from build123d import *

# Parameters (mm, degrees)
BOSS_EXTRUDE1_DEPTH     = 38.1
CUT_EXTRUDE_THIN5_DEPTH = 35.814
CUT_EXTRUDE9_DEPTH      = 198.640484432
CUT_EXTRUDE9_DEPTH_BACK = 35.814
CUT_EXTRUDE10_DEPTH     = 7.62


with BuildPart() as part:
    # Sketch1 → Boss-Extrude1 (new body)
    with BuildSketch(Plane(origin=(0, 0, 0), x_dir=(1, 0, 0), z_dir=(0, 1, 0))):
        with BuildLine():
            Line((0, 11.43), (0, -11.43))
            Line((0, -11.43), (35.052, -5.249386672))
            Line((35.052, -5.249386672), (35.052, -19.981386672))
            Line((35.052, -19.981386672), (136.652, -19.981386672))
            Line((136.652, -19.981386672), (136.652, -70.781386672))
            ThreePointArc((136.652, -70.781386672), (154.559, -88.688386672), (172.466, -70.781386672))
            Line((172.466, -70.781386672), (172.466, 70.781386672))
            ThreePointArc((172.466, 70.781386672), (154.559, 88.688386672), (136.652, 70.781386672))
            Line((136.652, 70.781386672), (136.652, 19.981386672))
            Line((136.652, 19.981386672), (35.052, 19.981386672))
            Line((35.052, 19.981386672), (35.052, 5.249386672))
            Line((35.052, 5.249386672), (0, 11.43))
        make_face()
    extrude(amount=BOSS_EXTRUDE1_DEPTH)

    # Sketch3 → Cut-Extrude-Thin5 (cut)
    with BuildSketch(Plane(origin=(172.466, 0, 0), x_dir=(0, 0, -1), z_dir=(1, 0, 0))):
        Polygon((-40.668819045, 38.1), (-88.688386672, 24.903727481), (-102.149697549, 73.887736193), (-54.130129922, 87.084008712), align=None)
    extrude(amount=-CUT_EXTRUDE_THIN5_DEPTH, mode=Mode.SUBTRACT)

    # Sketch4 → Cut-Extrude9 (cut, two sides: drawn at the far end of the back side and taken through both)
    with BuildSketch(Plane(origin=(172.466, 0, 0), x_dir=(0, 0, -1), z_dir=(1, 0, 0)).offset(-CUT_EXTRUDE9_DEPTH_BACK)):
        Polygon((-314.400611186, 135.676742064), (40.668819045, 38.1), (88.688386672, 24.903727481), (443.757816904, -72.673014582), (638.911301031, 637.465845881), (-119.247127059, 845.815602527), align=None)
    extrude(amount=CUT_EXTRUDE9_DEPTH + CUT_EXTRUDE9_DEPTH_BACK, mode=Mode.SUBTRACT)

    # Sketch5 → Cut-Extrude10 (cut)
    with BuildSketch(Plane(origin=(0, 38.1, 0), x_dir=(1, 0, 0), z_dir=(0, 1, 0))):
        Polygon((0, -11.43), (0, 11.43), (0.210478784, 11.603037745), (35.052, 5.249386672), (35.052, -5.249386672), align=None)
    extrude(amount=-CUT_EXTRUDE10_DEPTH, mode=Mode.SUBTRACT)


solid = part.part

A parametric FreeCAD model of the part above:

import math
import FreeCAD as App
import Part
import Sketcher
from FreeCAD import Vector
Q = App.Units.Quantity


def add_polygon(sketch, points):
    """Adds a closed chain of lines whose ends are joined by coincident constraints."""
    first, n = sketch.GeometryCount, len(points)
    for a, b in zip(points, points[1:] + points[:1]):
        sketch.addGeometry(Part.LineSegment(App.Vector(*a, 0), App.Vector(*b, 0)), False)
    for i in range(n):
        sketch.addConstraint(Sketcher.Constraint("Coincident", first + i, 2, first + (i + 1) % n, 1))

doc = App.newDocument("Part")
body = doc.addObject("PartDesign::Body", "Body")

sketch1 = body.newObject("Sketcher::SketchObject", "Sketch")
sketch1.AttachmentSupport = (doc.getObject("XZ_Plane"), [""])
sketch1.MapMode = "FlatFace"
sketch1.addGeometry(Part.LineSegment(Vector(0, -11.43, 0), Vector(0, 11.43, 0)), False)
sketch1.addGeometry(Part.LineSegment(Vector(0, 11.43, 0), Vector(35.052, 5.249387, 0)), False)
sketch1.addGeometry(Part.LineSegment(Vector(35.052, 5.249387, 0), Vector(35.052, 19.981387, 0)), False)
sketch1.addGeometry(Part.LineSegment(Vector(35.052, 19.981387, 0), Vector(136.652, 19.981387, 0)), False)
sketch1.addGeometry(Part.LineSegment(Vector(136.652, 19.981387, 0), Vector(136.652, 70.781387, 0)), False)
sketch1.addGeometry(Part.ArcOfCircle(Part.Circle(Vector(154.559, 70.781387, 0), Vector(0, 0, 1), 17.907), math.radians(0), math.radians(180)), False)
sketch1.addGeometry(Part.LineSegment(Vector(172.466, 70.781387, 0), Vector(172.466, -70.781387, 0)), False)
sketch1.addGeometry(Part.ArcOfCircle(Part.Circle(Vector(154.559, -70.781387, 0), Vector(0, 0, 1), 17.907), math.radians(180), math.radians(360)), False)
sketch1.addGeometry(Part.LineSegment(Vector(136.652, -70.781387, 0), Vector(136.652, -19.981387, 0)), False)
sketch1.addGeometry(Part.LineSegment(Vector(136.652, -19.981387, 0), Vector(35.052, -19.981387, 0)), False)
sketch1.addGeometry(Part.LineSegment(Vector(35.052, -19.981387, 0), Vector(35.052, -5.249387, 0)), False)
sketch1.addGeometry(Part.LineSegment(Vector(35.052, -5.249387, 0), Vector(0, -11.43, 0)), False)
sketch1.addConstraint(Sketcher.Constraint("Coincident", 0, 2, 1, 1))
sketch1.addConstraint(Sketcher.Constraint("Coincident", 1, 2, 2, 1))
sketch1.addConstraint(Sketcher.Constraint("Coincident", 2, 2, 3, 1))
sketch1.addConstraint(Sketcher.Constraint("Coincident", 3, 2, 4, 1))
sketch1.addConstraint(Sketcher.Constraint("Tangent", 4, 2, 5, 2))
sketch1.addConstraint(Sketcher.Constraint("Tangent", 5, 1, 6, 1))
sketch1.addConstraint(Sketcher.Constraint("Tangent", 6, 2, 7, 2))
sketch1.addConstraint(Sketcher.Constraint("Tangent", 7, 1, 8, 1))
sketch1.addConstraint(Sketcher.Constraint("Coincident", 8, 2, 9, 1))
sketch1.addConstraint(Sketcher.Constraint("Coincident", 9, 2, 10, 1))
sketch1.addConstraint(Sketcher.Constraint("Coincident", 10, 2, 11, 1))
sketch1.addConstraint(Sketcher.Constraint("Coincident", 11, 2, 0, 1))
sketch1.addConstraint(Sketcher.Constraint("Vertical", 0))
sketch1.addConstraint(Sketcher.Constraint("Vertical", 2))
sketch1.addConstraint(Sketcher.Constraint("Horizontal", 3))
sketch1.addConstraint(Sketcher.Constraint("Vertical", 4))
sketch1.addConstraint(Sketcher.Constraint("Vertical", 6))
sketch1.addConstraint(Sketcher.Constraint("Vertical", 8))
sketch1.addConstraint(Sketcher.Constraint("Horizontal", 9))
sketch1.addConstraint(Sketcher.Constraint("Vertical", 10))
sketch1.addConstraint(Sketcher.Constraint("Equal", 5, 7))
sketch1.addConstraint(Sketcher.Constraint("Symmetric", 0, 2, 11, 2, -1, 1))
sketch1.addConstraint(Sketcher.Constraint("Symmetric", 2, 2, 9, 2, -1))
sketch1.addConstraint(Sketcher.Constraint("Equal", 4, 8))
sketch1.addConstraint(Sketcher.Constraint("Equal", 2, 10))
sketch1.addConstraint(Sketcher.Constraint("DistanceX", 3, 1, 3, 2, Q("4 in")))
sketch1.addConstraint(Sketcher.Constraint("DistanceY", 4, 1, 4, 2, Q("2 in")))
sketch1.addConstraint(Sketcher.Constraint("DistanceY", 0, 1, 0, 2, Q("0.9 in")))
sketch1.addConstraint(Sketcher.Constraint("Angle", 1, Q("-10 deg")))
sketch1.addConstraint(Sketcher.Constraint("Radius", 5, Q("0.705 in")))
sketch1.addConstraint(Sketcher.Constraint("DistanceY", 2, 1, 2, 2, Q("0.58 in")))
sketch1.addConstraint(Sketcher.Constraint("DistanceX", -1, 1, 1, 2, Q("1.38 in")))
pad1 = body.newObject("PartDesign::Pad", "Pad")
pad1.Profile = sketch1
pad1.Length = Q("1.5 in")
pad1.Reversed = True

sketch2 = body.newObject("Sketcher::SketchObject", "Sketch001")
sketch2.AttachmentSupport = (doc.getObject("YZ_Plane"), [""])
sketch2.MapMode = "FlatFace"
sketch2.AttachmentOffset = App.Placement(Vector(0, 0, 6.79 * 25.4), App.Rotation())
add_polygon(sketch2, [(24.903727, 88.688387), (38.1, 40.668819), (87.084009, 54.13013), (73.887736, 102.149698)])
sketch2.addConstraint(Sketcher.Constraint("Perpendicular", 0, 1))
sketch2.addConstraint(Sketcher.Constraint("Perpendicular", 1, 2))
sketch2.addConstraint(Sketcher.Constraint("Perpendicular", 2, 3))
sketch2.addConstraint(Sketcher.Constraint("Distance", 1, Q("2 in")))
sketch2.addConstraint(Sketcher.Constraint("DistanceX", -1, 1, 0, 2, Q("1.5 in")))
sketch2.addConstraint(Sketcher.Constraint("DistanceY", -1, 1, 0, 2, Q("40.668819 mm")))
sketch2.addConstraint(Sketcher.Constraint("DistanceX", -1, 1, 1, 2, Q("87.084009 mm")))
sketch2.addConstraint(Sketcher.Constraint("DistanceY", 0, 2, 2, 2, Q("61.480879 mm")))
pocket1 = body.newObject("PartDesign::Pocket", "Pocket")
pocket1.Profile = sketch2
pocket1.Length = Q("1.41 in")

sketch3 = body.newObject("Sketcher::SketchObject", "Sketch002")
sketch3.AttachmentSupport = (doc.getObject("YZ_Plane"), [""])
sketch3.MapMode = "FlatFace"
sketch3.AttachmentOffset = App.Placement(Vector(0, 0, 6.79 * 25.4), App.Rotation())
add_polygon(sketch3, [(135.676742, 314.400611), (38.1, -40.668819), (24.903727, -88.688387), (-72.673015, -443.757817), (637.465846, -638.911301), (845.815603, 119.247127)])
sketch3.addConstraint(Sketcher.Constraint("Parallel", 0, 1))
sketch3.addConstraint(Sketcher.Constraint("Parallel", 1, 2))
sketch3.addConstraint(Sketcher.Constraint("Perpendicular", 2, 3))
sketch3.addConstraint(Sketcher.Constraint("Perpendicular", 3, 4))
sketch3.addConstraint(Sketcher.Constraint("Perpendicular", 4, 5))
sketch3.addConstraint(Sketcher.Constraint("Equal", 0, 2))
sketch3.addConstraint(Sketcher.Constraint("DistanceX", -1, 1, 0, 2, Q("1.5 in")))
sketch3.addConstraint(Sketcher.Constraint("DistanceY", 3, 2, -1, 1, Q("638.911301 mm")))
sketch3.addConstraint(Sketcher.Constraint("Distance", 0, Q("368.232971 mm")))
sketch3.addConstraint(Sketcher.Constraint("Distance", 3, Q("736.465942 mm")))
sketch3.addConstraint(Sketcher.Constraint("DistanceY", 0, 2, -1, 1, Q("40.668819 mm")))
sketch3.addConstraint(Sketcher.Constraint("DistanceY", -1, 1, 5, 2, Q("314.400611 mm")))
pocket2 = body.newObject("PartDesign::Pocket", "Pocket001")
pocket2.Profile = sketch3
pocket2.Type = "ThroughAll"
pocket2.Midplane = True

sketch4 = body.newObject("Sketcher::SketchObject", "Sketch003")
sketch4.AttachmentSupport = (doc.getObject("XZ_Plane"), [""])
sketch4.MapMode = "FlatFace"
sketch4.AttachmentOffset = App.Placement(Vector(0, 0, -1.5 * 25.4), App.Rotation())
add_polygon(sketch4, [(0, -11.43), (0, 11.43), (35.052, 5.249387), (35.052, -5.249387), (0.210479, -11.603038)])
sketch4.addConstraint(Sketcher.Constraint("Vertical", 0))
sketch4.addConstraint(Sketcher.Constraint("Vertical", 2))
sketch4.addConstraint(Sketcher.Constraint("Symmetric", 0, 2, 4, 2, -1, 1))
sketch4.addConstraint(Sketcher.Constraint("DistanceY", 0, 1, 0, 2, Q("0.9 in")))
sketch4.addConstraint(Sketcher.Constraint("Angle", 1, Q("-10 deg")))
sketch4.addConstraint(Sketcher.Constraint("DistanceX", -1, 1, 1, 2, Q("1.38 in")))
sketch4.addConstraint(Sketcher.Constraint("DistanceY", 2, 2, 2, 1, Q("10.498773 mm")))
sketch4.addConstraint(Sketcher.Constraint("DistanceX", -1, 1, 3, 2, Q("0.210479 mm")))
sketch4.addConstraint(Sketcher.Constraint("DistanceY", 3, 2, 2, 2, Q("6.353651 mm")))
pocket3 = body.newObject("PartDesign::Pocket", "Pocket002")
pocket3.Profile = sketch4
pocket3.Length = Q("0.3 in")
pocket3.Reversed = True

doc.recompute()
